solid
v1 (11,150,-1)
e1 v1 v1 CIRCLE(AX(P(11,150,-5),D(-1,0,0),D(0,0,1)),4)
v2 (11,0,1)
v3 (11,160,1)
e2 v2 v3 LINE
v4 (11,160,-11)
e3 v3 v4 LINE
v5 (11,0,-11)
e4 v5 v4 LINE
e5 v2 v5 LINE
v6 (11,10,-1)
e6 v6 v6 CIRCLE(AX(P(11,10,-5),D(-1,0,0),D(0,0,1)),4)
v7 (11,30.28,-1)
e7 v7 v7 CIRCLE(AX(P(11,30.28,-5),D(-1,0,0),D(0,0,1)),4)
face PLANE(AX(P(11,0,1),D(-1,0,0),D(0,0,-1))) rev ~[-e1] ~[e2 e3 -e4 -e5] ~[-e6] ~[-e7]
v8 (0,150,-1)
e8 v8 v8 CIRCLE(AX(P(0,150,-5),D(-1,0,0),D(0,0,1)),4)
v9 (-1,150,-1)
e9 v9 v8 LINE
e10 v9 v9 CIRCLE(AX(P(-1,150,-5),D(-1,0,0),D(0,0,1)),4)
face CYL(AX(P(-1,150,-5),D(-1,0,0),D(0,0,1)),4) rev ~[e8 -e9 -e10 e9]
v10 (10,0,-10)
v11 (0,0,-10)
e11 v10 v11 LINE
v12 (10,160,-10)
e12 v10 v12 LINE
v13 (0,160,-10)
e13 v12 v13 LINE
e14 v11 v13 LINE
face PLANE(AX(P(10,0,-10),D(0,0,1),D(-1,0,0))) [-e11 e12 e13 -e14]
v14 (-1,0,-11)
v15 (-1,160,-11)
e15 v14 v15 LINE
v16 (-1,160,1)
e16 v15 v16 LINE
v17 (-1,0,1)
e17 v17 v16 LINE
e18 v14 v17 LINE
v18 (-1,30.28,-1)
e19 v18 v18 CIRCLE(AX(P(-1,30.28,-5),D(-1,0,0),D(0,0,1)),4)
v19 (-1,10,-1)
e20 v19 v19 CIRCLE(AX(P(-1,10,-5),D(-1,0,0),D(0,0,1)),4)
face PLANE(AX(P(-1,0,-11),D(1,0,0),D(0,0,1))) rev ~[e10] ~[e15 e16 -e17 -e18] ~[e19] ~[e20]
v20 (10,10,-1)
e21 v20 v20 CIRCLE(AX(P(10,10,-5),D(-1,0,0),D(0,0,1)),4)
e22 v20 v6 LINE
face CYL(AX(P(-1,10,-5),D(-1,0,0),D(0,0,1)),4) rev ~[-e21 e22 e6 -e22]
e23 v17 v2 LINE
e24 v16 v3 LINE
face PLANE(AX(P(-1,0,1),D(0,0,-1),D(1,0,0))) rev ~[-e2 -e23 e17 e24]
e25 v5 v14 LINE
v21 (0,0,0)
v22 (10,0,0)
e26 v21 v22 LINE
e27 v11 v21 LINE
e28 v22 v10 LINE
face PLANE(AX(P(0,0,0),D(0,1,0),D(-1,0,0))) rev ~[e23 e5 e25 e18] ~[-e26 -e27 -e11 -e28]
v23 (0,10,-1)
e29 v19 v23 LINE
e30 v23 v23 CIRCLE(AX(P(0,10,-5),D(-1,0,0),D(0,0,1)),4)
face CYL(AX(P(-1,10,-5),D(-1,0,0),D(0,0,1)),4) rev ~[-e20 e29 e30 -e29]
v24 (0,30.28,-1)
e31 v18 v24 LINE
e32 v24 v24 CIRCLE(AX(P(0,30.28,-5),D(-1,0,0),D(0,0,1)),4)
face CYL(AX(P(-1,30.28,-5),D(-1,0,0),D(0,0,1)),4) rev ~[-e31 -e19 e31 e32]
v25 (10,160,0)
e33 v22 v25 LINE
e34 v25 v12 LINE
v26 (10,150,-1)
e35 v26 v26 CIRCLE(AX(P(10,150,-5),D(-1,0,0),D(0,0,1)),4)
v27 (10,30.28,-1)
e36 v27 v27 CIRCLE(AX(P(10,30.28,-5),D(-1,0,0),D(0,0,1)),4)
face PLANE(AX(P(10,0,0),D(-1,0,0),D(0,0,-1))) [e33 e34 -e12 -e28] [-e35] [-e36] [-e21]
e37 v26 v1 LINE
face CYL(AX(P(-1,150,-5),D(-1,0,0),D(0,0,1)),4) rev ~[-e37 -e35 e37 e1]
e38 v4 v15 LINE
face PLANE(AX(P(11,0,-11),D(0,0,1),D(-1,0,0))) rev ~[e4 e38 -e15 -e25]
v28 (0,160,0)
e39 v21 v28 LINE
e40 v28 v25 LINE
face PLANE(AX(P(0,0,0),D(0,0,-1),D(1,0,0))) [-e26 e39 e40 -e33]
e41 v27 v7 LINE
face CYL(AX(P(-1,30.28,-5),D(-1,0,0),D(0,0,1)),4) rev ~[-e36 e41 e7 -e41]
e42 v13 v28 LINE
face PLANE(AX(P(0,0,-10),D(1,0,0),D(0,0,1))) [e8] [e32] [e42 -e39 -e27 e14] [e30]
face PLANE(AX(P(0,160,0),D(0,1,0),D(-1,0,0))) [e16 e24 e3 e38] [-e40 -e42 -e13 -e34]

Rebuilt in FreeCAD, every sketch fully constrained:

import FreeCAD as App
import Part
import Sketcher


def add_polygon(sketch, points):
    """Adds a closed chain of lines whose ends are joined by coincident constraints."""
    first, n = sketch.GeometryCount, len(points)
    for a, b in zip(points, points[1:] + points[:1]):
        sketch.addGeometry(Part.LineSegment(App.Vector(*a, 0), App.Vector(*b, 0)), False)
    for i in range(n):
        sketch.addConstraint(Sketcher.Constraint("Coincident", first + i, 2, first + (i + 1) % n, 1))

doc = App.newDocument("Part")
body = doc.addObject("PartDesign::Body", "Body")

sketch1 = body.newObject("Sketcher::SketchObject", "Sketch")
sketch1.AttachmentSupport = (doc.getObject("XZ_Plane"), [""])
sketch1.MapMode = "FlatFace"
add_polygon(sketch1, [(-1, -11), (-1, 1), (11, 1), (11, -11)])
add_polygon(sketch1, [(10, 0), (0, 0), (0, -10), (10, -10)])
sketch1.addConstraint([
    Sketcher.Constraint("Vertical", 0),
    Sketcher.Constraint("Horizontal", 1),
    Sketcher.Constraint("Vertical", 2),
    Sketcher.Constraint("Horizontal", 3),
    Sketcher.Constraint("Horizontal", 4),
    Sketcher.Constraint("Vertical", 5),
    Sketcher.Constraint("Horizontal", 6),
    Sketcher.Constraint("Vertical", 7),
    Sketcher.Constraint("Coincident", 4, 2, -1, 1),
    Sketcher.Constraint("Equal", 3, 0),
    Sketcher.Constraint("Equal", 6, 5),
    Sketcher.Constraint("DistanceX", 1, 1, 1, 2, 12.0),
    Sketcher.Constraint("DistanceX", 4, 2, 4, 1, 10.0),
    Sketcher.Constraint("DistanceX", 0, 2, -1, 1, 1.0),
    Sketcher.Constraint("DistanceY", -1, 1, 0, 2, 1.0),
])
pad1 = body.newObject("PartDesign::Pad", "Pad")
pad1.Profile = sketch1
pad1.Length = 160
pad1.Reversed = True

sketch2 = body.newObject("Sketcher::SketchObject", "Sketch001")
sketch2.AttachmentSupport = (doc.getObject("YZ_Plane"), [""])
sketch2.MapMode = "FlatFace"
sketch2.AttachmentOffset = App.Placement(App.Vector(0, 0, -1), App.Rotation())
sketch2.addGeometry([
    Part.Circle(App.Vector(10, -5, 0), App.Vector(0, 0, 1), 4),
    Part.Circle(App.Vector(30.28, -5, 0), App.Vector(0, 0, 1), 4),
    Part.Circle(App.Vector(150, -5, 0), App.Vector(0, 0, 1), 4),
], False)
sketch2.addConstraint([
    Sketcher.Constraint("Equal", 0, 1),
    Sketcher.Constraint("Equal", 1, 2),
    Sketcher.Constraint("Horizontal", 0, 3, 1, 3),
    Sketcher.Constraint("Horizontal", 1, 3, 2, 3),
    Sketcher.Constraint("Diameter", 0, 8.0),
    Sketcher.Constraint("DistanceX", -1, 1, 0, 3, 10.0),
    Sketcher.Constraint("DistanceX", 0, 3, 1, 3, 20.28),
    Sketcher.Constraint("DistanceY", 0, 3, -1, 1, 5.0),
    Sketcher.Constraint("DistanceX", -1, 1, 2, 3, 150.0),
])
pocket1 = body.newObject("PartDesign::Pocket", "Pocket")
pocket1.Profile = sketch2
pocket1.Length = 20
pocket1.Reversed = True

doc.recompute()
